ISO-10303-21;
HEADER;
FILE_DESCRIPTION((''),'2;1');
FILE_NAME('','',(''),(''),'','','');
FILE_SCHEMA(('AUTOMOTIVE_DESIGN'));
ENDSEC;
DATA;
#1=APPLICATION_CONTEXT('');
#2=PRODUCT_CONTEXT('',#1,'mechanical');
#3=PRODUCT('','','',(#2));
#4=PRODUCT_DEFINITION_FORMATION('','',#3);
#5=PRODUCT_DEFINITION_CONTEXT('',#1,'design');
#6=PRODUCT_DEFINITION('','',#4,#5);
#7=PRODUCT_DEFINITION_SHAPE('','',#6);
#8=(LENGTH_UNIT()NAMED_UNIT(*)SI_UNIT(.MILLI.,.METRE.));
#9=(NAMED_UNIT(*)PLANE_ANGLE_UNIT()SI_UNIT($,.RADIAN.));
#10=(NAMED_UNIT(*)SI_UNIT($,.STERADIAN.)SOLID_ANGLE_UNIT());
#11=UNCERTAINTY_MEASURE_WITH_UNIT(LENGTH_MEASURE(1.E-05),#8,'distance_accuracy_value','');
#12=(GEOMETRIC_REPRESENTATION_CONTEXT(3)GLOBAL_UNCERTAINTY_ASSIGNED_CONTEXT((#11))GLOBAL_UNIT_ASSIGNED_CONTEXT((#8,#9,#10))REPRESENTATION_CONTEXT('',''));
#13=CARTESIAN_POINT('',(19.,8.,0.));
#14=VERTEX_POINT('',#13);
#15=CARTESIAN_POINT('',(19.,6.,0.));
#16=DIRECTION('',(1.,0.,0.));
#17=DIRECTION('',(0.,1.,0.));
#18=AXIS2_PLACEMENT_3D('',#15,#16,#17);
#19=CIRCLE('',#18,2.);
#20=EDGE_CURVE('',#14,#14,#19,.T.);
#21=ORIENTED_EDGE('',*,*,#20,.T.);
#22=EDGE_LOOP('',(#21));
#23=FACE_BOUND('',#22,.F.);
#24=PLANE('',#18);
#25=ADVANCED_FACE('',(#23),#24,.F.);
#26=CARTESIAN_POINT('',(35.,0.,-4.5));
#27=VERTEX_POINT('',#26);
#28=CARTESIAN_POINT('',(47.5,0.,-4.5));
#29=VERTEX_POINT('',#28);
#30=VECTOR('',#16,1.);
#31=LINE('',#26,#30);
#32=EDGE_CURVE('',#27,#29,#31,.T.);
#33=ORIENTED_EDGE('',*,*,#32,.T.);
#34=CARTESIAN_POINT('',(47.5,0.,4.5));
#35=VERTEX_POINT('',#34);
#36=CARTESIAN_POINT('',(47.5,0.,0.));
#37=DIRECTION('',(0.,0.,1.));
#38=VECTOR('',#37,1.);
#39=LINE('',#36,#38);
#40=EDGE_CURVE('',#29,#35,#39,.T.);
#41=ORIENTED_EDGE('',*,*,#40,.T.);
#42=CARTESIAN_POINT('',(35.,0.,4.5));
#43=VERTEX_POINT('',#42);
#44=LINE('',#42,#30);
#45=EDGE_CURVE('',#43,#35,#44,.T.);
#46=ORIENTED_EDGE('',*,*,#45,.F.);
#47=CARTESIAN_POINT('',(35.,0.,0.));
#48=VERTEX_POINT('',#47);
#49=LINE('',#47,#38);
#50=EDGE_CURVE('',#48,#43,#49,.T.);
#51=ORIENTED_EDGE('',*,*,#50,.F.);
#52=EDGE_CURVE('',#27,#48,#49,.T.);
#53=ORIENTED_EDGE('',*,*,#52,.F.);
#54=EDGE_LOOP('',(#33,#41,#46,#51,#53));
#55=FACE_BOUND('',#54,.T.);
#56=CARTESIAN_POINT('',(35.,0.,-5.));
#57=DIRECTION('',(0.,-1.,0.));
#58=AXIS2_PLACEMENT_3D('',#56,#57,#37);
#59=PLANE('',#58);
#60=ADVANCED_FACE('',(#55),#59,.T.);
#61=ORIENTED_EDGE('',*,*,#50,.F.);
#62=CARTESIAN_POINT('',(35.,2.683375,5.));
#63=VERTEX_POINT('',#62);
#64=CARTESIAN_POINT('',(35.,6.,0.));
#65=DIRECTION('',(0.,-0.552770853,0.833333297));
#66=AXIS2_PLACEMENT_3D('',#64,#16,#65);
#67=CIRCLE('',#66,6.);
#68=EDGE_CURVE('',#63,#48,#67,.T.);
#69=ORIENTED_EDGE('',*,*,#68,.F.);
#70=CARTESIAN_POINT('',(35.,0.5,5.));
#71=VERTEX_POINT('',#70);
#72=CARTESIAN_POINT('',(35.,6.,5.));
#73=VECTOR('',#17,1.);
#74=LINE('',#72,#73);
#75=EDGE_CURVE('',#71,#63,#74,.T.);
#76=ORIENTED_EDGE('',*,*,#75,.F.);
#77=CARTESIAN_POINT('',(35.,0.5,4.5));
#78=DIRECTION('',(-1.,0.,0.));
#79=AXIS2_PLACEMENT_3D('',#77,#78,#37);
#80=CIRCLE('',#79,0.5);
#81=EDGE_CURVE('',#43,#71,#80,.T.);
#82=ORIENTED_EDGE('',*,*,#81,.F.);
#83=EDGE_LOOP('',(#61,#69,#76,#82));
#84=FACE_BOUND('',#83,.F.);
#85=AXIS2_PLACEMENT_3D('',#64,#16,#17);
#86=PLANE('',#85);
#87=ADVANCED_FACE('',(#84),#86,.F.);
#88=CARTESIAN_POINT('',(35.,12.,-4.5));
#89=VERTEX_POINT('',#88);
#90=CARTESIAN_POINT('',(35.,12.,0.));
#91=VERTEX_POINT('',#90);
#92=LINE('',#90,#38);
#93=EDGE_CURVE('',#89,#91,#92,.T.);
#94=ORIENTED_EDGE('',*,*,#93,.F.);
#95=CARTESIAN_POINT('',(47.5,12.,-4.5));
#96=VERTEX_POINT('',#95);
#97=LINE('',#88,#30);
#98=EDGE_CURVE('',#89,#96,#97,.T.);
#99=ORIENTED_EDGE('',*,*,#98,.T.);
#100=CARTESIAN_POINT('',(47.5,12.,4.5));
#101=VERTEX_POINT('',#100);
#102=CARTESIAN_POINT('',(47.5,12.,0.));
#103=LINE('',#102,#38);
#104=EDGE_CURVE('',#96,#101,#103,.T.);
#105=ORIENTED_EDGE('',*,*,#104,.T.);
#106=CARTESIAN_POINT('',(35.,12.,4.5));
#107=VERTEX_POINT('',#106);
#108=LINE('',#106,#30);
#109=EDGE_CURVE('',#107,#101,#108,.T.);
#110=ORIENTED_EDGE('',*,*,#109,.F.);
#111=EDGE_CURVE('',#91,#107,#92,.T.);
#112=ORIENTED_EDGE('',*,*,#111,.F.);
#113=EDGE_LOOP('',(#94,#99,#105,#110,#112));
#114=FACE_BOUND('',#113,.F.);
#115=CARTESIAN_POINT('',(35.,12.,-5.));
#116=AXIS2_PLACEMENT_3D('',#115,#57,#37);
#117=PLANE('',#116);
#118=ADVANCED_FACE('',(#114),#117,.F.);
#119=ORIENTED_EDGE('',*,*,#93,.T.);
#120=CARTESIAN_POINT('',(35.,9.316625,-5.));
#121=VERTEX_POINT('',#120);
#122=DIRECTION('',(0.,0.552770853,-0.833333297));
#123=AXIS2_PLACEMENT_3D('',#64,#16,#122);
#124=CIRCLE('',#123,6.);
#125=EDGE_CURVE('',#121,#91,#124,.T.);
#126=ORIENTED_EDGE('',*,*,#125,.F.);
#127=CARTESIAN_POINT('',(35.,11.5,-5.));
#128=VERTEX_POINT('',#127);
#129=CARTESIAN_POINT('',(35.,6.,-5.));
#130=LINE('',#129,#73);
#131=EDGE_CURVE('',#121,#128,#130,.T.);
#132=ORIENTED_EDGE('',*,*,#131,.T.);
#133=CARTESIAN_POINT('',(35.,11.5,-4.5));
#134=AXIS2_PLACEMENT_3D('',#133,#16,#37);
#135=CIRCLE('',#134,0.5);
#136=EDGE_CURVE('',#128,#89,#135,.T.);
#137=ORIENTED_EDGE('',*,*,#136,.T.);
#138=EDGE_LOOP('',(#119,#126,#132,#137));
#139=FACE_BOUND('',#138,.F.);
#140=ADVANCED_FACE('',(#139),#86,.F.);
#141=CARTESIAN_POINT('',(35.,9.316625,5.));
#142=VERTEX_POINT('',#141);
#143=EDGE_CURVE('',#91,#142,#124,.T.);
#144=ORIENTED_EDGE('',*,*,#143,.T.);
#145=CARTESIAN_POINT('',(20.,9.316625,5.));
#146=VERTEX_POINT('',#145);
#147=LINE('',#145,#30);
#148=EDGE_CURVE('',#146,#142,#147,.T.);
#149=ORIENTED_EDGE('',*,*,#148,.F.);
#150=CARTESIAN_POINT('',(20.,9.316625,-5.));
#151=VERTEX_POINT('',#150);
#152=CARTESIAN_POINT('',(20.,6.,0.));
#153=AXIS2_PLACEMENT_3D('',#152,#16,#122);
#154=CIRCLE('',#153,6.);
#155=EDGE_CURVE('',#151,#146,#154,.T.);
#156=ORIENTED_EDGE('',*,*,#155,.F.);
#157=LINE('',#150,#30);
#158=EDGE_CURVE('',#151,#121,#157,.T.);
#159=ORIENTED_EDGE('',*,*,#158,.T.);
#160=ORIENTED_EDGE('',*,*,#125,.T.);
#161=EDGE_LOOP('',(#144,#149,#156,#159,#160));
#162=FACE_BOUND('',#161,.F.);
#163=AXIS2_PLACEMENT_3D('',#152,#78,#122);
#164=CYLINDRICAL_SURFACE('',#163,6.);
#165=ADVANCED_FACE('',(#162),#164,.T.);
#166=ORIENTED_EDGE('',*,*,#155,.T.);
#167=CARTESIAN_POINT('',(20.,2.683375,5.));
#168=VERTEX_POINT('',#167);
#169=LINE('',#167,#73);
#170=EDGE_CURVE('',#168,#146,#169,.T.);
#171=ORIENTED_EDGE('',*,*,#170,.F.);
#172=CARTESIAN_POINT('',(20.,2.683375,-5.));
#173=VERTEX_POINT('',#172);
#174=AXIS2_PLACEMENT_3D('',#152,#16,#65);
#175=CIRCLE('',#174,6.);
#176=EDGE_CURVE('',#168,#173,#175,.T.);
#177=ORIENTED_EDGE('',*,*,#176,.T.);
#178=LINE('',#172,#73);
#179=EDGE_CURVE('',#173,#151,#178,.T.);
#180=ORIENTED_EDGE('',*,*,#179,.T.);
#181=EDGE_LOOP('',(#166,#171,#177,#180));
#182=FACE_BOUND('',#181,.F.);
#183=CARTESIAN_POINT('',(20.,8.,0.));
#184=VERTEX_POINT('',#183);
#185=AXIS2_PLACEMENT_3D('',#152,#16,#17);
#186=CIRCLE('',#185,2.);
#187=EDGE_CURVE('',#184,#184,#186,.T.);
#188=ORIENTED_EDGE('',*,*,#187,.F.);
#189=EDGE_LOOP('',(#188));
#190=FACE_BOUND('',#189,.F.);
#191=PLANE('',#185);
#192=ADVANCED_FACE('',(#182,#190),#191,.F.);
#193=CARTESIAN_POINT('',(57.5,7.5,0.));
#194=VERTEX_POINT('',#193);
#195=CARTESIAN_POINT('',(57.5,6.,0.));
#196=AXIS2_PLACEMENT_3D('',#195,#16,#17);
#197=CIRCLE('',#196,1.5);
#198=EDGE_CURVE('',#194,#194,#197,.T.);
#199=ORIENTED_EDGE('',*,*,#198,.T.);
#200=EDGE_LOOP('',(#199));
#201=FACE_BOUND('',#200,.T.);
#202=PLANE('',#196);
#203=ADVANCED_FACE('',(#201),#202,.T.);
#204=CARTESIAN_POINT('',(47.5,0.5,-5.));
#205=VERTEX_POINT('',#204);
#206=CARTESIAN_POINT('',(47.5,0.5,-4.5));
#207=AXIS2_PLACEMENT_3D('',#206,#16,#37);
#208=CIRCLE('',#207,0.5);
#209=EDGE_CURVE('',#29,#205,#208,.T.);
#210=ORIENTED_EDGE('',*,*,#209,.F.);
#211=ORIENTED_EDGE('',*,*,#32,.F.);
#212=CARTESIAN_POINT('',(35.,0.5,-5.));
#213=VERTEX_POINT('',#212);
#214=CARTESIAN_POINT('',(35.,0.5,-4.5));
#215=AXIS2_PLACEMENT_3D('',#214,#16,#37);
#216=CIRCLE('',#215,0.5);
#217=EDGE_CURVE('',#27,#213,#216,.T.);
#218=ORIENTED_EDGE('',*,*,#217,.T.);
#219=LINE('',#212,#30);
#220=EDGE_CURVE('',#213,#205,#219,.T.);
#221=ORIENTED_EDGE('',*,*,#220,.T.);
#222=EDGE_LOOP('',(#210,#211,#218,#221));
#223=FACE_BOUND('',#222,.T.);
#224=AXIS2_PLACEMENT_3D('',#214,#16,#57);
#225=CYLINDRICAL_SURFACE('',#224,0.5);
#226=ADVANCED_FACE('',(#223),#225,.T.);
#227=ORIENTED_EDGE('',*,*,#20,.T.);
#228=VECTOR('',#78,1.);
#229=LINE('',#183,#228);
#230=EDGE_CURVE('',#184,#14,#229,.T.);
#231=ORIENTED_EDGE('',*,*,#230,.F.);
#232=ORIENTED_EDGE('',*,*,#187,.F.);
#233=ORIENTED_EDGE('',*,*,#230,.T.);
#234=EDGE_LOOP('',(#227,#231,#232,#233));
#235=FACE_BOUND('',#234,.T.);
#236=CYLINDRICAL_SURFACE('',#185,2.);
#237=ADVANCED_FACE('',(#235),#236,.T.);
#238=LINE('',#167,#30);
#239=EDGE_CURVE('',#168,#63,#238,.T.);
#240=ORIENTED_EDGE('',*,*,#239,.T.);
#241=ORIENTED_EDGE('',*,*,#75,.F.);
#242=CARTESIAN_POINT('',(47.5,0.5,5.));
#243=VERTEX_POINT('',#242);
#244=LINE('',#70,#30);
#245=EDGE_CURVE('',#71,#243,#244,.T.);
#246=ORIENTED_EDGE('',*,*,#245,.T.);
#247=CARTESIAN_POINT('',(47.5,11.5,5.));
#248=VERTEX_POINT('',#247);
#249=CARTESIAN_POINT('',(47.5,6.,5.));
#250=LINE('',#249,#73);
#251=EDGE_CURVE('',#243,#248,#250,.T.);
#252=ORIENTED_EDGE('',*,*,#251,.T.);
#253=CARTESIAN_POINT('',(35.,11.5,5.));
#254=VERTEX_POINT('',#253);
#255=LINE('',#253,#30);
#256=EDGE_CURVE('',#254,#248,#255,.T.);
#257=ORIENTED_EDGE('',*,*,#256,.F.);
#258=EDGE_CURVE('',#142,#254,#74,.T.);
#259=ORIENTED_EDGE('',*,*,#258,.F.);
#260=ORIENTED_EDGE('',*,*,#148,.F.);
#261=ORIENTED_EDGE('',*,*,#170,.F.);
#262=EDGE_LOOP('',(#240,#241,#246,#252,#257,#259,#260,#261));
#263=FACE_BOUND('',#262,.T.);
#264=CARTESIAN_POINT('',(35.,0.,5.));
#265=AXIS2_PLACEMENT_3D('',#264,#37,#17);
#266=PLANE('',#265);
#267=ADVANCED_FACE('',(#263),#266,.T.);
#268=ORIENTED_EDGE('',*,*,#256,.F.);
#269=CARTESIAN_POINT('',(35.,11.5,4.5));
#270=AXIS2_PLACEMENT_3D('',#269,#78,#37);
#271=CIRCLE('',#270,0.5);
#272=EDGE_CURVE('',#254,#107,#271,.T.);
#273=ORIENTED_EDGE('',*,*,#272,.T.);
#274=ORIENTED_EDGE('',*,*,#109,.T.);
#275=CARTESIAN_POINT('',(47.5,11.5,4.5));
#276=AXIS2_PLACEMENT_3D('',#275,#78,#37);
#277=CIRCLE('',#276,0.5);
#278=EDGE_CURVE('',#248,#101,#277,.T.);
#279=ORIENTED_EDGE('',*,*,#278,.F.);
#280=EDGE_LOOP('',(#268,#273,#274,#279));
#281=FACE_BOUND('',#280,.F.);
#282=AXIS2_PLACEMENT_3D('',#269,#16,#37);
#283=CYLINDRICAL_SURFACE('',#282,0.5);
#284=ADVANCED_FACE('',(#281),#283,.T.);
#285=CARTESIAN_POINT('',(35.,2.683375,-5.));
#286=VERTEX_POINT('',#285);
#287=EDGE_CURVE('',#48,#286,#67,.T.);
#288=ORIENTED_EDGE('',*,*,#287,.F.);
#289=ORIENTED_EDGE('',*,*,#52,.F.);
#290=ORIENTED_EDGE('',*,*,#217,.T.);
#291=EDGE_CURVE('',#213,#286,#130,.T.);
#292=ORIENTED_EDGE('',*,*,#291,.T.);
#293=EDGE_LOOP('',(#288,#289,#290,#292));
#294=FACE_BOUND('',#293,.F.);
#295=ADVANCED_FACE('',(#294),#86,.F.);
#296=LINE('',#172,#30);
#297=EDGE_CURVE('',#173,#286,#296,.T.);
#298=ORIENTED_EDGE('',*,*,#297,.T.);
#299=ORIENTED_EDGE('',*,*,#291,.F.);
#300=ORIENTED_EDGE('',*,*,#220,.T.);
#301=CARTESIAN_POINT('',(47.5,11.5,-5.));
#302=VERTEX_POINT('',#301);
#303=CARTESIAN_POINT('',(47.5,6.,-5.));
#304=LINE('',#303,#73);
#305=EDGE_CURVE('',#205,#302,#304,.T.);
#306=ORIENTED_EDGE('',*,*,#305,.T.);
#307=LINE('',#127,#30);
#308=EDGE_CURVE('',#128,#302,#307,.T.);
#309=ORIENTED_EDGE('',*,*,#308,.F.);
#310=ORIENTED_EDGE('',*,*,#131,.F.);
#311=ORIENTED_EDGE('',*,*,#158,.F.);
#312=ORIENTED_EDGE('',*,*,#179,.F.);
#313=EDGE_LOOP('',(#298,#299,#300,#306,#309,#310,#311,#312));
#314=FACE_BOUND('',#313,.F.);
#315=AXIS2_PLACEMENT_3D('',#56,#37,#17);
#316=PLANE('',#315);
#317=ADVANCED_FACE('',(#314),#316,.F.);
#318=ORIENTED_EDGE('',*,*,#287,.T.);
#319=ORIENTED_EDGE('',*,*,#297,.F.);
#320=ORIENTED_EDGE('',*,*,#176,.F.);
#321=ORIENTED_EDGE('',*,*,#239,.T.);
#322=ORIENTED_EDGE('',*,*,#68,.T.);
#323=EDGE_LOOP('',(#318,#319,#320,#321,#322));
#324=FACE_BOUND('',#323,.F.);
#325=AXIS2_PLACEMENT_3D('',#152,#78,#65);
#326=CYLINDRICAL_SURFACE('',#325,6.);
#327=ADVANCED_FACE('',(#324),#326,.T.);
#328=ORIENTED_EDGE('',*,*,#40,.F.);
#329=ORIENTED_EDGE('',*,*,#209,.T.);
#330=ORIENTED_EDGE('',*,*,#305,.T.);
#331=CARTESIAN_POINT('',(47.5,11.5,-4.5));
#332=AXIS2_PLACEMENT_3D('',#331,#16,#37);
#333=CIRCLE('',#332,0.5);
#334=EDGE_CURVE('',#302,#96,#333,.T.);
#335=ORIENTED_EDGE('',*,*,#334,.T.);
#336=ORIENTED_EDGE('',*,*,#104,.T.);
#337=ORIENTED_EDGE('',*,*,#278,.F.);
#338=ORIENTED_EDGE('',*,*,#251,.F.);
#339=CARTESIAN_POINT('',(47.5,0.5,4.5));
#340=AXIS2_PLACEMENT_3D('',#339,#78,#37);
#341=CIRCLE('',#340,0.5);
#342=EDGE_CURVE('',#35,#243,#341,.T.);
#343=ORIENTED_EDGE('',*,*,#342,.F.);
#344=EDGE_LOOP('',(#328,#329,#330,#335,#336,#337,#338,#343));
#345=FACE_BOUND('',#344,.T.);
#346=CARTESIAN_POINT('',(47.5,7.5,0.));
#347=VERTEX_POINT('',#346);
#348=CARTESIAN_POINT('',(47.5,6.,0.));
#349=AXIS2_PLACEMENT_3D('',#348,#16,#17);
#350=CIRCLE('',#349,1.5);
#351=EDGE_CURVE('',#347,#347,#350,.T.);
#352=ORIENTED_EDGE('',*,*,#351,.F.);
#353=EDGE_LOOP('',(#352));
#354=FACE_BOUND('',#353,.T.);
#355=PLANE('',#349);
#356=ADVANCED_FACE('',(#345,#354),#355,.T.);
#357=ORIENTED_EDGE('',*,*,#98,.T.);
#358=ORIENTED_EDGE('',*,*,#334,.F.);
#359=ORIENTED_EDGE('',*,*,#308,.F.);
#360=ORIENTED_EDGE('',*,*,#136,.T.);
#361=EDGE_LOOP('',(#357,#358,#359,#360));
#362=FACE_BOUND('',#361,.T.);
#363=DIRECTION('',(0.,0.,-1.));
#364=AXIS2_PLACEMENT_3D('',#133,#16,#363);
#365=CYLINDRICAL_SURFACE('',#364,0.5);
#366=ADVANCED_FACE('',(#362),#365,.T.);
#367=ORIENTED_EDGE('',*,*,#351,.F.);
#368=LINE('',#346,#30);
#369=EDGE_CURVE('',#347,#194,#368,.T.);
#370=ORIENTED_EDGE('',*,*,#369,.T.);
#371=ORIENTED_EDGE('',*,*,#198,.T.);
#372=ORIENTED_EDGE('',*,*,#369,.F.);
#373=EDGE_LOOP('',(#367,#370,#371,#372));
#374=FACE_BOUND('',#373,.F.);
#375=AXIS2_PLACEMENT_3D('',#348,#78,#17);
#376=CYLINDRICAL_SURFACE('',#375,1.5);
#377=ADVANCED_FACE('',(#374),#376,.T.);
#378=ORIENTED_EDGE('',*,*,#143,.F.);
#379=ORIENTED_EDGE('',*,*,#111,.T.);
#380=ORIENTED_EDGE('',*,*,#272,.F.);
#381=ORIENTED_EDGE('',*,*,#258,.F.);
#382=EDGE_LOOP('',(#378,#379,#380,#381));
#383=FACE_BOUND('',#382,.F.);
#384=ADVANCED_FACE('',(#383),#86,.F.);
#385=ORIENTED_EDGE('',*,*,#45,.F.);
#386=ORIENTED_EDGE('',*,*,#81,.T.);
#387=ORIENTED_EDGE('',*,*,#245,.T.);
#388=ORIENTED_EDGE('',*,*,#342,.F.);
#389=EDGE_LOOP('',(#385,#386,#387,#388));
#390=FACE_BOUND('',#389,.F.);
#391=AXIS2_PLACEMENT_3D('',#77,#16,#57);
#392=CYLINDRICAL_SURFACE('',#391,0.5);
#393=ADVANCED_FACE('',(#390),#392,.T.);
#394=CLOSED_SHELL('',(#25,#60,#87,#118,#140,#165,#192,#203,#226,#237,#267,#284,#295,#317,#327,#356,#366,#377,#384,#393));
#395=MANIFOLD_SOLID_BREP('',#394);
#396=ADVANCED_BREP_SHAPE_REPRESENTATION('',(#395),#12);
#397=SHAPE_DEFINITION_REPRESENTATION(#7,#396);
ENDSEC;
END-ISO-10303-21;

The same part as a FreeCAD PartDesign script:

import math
import FreeCAD as App
import Part
import Sketcher
from FreeCAD import Vector


def edges_at(feature, points):
    """Names of the edges that pass closest to the given points."""
    edges = feature.Shape.Edges
    near = lambda p: min(range(len(edges)), key=lambda i: edges[i].distToShape(Part.Vertex(*p))[0])
    return sorted({f"Edge{near(p) + 1}" for p in points})


def add_polygon(sketch, points):
    """Adds a closed chain of lines whose ends are joined by coincident constraints."""
    first, n = sketch.GeometryCount, len(points)
    for a, b in zip(points, points[1:] + points[:1]):
        sketch.addGeometry(Part.LineSegment(App.Vector(*a, 0), App.Vector(*b, 0)), False)
    for i in range(n):
        sketch.addConstraint(Sketcher.Constraint("Coincident", first + i, 2, first + (i + 1) % n, 1))

doc = App.newDocument("Part")
body = doc.addObject("PartDesign::Body", "Body")

# Sketch on YZ plane
sketch1 = body.newObject("Sketcher::SketchObject", "Sketch")
sketch1.AttachmentSupport = (doc.getObject("YZ_Plane"), [""])
sketch1.MapMode = "FlatFace"
sketch1.addGeometry([
    Part.ArcOfCircle(Part.Circle(Vector(0, 0, 0), Vector(0, 0, 1), 6), math.radians(123.557313), math.radians(236.442687)),
    Part.LineSegment(Vector(-3.316625, -5, 0), Vector(3.316625, -5, 0)),
    Part.ArcOfCircle(Part.Circle(Vector(0, 0, 0), Vector(0, 0, 1), 6), math.radians(-56.442687), math.radians(56.442687)),
    Part.LineSegment(Vector(3.316625, 5, 0), Vector(-3.316625, 5, 0)),
], False)
sketch1.addConstraint([
    Sketcher.Constraint("Coincident", 0, 2, 1, 1),
    Sketcher.Constraint("Coincident", 1, 2, 2, 1),
    Sketcher.Constraint("Coincident", 2, 2, 3, 1),
    Sketcher.Constraint("Coincident", 3, 2, 0, 1),
    Sketcher.Constraint("Horizontal", 1),
    Sketcher.Constraint("Horizontal", 3),
    Sketcher.Constraint("Coincident", 0, 3, -1, 1),
    Sketcher.Constraint("Coincident", 2, 3, -1, 1),
    Sketcher.Constraint("Equal", 0, 2),
    Sketcher.Constraint("Vertical", 1, 2, 2, 2),
    Sketcher.Constraint("Radius", 0, 6.0),
    Sketcher.Constraint("DistanceY", 0, 2, -1, 1, 5.0),
])
pad1 = body.newObject("PartDesign::Pad", "Pad")
pad1.Profile = sketch1
pad1.Length = 15

# Sketch on YZ plane
sketch2 = body.newObject("Sketcher::SketchObject", "Sketch001")
sketch2.AttachmentSupport = (doc.getObject("YZ_Plane"), [""])
sketch2.MapMode = "FlatFace"
sketch2.addGeometry(Part.Circle(Vector(0, 0, 0), Vector(0, 0, 1), 2), False)
sketch2.addConstraint([
    Sketcher.Constraint("Coincident", 0, 3, -1, 1),
    Sketcher.Constraint("Diameter", 0, 4.0),
])
pad2 = body.newObject("PartDesign::Pad", "Pad001")
pad2.Profile = sketch2
pad2.Length = 1
pad2.Reversed = True

# Sketch on YZ plane
sketch3 = body.newObject("Sketcher::SketchObject", "Sketch002")
sketch3.AttachmentSupport = (doc.getObject("YZ_Plane"), [""])
sketch3.MapMode = "FlatFace"
sketch3.AttachmentOffset = App.Placement(Vector(0, 0, 15), App.Rotation())
add_polygon(sketch3, [(-6, 5), (-6, -5), (6, -5), (6, 5)])  # lines 0-3
sketch3.addConstraint([
    Sketcher.Constraint("Vertical", 0),
    Sketcher.Constraint("Horizontal", 1),
    Sketcher.Constraint("Vertical", 2),
    Sketcher.Constraint("Horizontal", 3),
    Sketcher.Constraint("Symmetric", 0, 2, 2, 2, -1, 1),
    Sketcher.Constraint("DistanceX", 1, 1, 1, 2, 12.0),
    Sketcher.Constraint("DistanceY", 0, 2, 0, 1, 10.0),
])
pad3 = body.newObject("PartDesign::Pad", "Pad002")
pad3.Profile = sketch3
pad3.Length = 12.5
doc.recompute()

fillet = body.newObject("PartDesign::Fillet", "Fillet")
fillet.Base = (pad3, edges_at(pad3, [
    (21.25, -6, 5),
    (21.25, 6, 5),
    (21.25, -6, -5),
    (21.25, 6, -5),
]))
fillet.Radius = 0.5

# Sketch on YZ plane
sketch4 = body.newObject("Sketcher::SketchObject", "Sketch003")
sketch4.AttachmentSupport = (doc.getObject("YZ_Plane"), [""])
sketch4.MapMode = "FlatFace"
sketch4.AttachmentOffset = App.Placement(Vector(0, 0, 27.5), App.Rotation())
sketch4.addGeometry(Part.Circle(Vector(0, 0, 0), Vector(0, 0, 1), 1.5), False)
sketch4.addConstraint([
    Sketcher.Constraint("Coincident", 0, 3, -1, 1),
    Sketcher.Constraint("Diameter", 0, 3.0),
])
pad4 = body.newObject("PartDesign::Pad", "Pad003")
pad4.Profile = sketch4
pad4.Length = 10
body2 = doc.addObject("PartDesign::Body", "Body001")
doc.recompute()

body.Placement = App.Placement(Vector(20, 6, 0), App.Rotation(Vector(0, 0, 1), 0))
boolean = body2.newObject("PartDesign::Boolean", "Boolean")
boolean.Type = "Fuse"
boolean.addObjects([body])

doc.recompute()
